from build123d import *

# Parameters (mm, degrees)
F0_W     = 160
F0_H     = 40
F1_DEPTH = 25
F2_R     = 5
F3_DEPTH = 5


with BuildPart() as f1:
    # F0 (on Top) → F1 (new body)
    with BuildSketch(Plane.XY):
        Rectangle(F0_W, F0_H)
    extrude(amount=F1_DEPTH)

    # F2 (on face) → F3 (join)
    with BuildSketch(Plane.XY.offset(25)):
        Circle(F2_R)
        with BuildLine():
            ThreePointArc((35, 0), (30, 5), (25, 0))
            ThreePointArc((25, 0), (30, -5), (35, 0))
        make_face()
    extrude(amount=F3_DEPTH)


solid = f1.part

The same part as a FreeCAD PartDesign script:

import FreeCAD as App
import Part
import Sketcher
Q = App.Units.Quantity


def add_polygon(sketch, points):
    """Adds a closed chain of lines whose ends are joined by coincident constraints."""
    first, n = sketch.GeometryCount, len(points)
    for a, b in zip(points, points[1:] + points[:1]):
        sketch.addGeometry(Part.LineSegment(App.Vector(*a, 0), App.Vector(*b, 0)), False)
    for i in range(n):
        sketch.addConstraint(Sketcher.Constraint("Coincident", first + i, 2, first + (i + 1) % n, 1))

doc = App.newDocument("Part")
params = doc.addObject("Spreadsheet::Sheet", "Params")
for row, (alias, value) in enumerate([
    ("sketch1_width", "160 mm"),
    ("sketch1_height", "40 mm"),
    ("pad1_length", "25 mm"),
    ("sketch2_diameter", "10 mm"),
    ("pad2_length", "5 mm"),
], start=1):
    params.set(f"A{row}", alias)
    params.set(f"B{row}", "=" + value)
    params.setAlias(f"B{row}", alias)

body = doc.addObject("PartDesign::Body", "Body")

# Sketch on XY plane
sketch1 = body.newObject("Sketcher::SketchObject", "Sketch")
sketch1.AttachmentSupport = (doc.getObject("XY_Plane"), [""])
sketch1.MapMode = "FlatFace"
add_polygon(sketch1, [(-80, 20), (-80, -20), (80, -20), (80, 20)])  # lines 0-3
sketch1.addConstraint([
    Sketcher.Constraint("Vertical", 0),
    Sketcher.Constraint("Horizontal", 1),
    Sketcher.Constraint("Vertical", 2),
    Sketcher.Constraint("Horizontal", 3),
    Sketcher.Constraint("Symmetric", 0, 2, 2, 2, -1, 1),
    Sketcher.Constraint("DistanceX", 1, 1, 1, 2, Q("160 mm")),
    Sketcher.Constraint("DistanceY", 0, 2, 0, 1, Q("40 mm")),
])
sketch1.setExpression("Constraints[9]", "Params.sketch1_width")
sketch1.setExpression("Constraints[10]", "Params.sketch1_height")
pad1 = body.newObject("PartDesign::Pad", "Pad")
pad1.Profile = sketch1
pad1.setExpression("Length", "Params.pad1_length")

# Sketch on XY plane
sketch2 = body.newObject("Sketcher::SketchObject", "Sketch001")
sketch2.AttachmentSupport = (doc.getObject("XY_Plane"), [""])
sketch2.MapMode = "FlatFace"
sketch2.AttachmentOffset = App.Placement(App.Vector(0, 0, 25), App.Rotation())
sketch2.addGeometry([
    Part.Circle(App.Vector(0, 0, 0), App.Vector(0, 0, 1), 5),
    Part.Circle(App.Vector(30, 0, 0), App.Vector(0, 0, 1), 5),
], False)
sketch2.addConstraint([
    Sketcher.Constraint("Coincident", 0, 3, -1, 1),
    Sketcher.Constraint("Equal", 0, 1),
    Sketcher.Constraint("PointOnObject", 1, 3, -1),
    Sketcher.Constraint("Diameter", 0, Q("10 mm")),
    Sketcher.Constraint("DistanceX", -1, 1, 1, 3, Q("30 mm")),
])
sketch2.setExpression("Constraints[3]", "Params.sketch2_diameter")
pad2 = body.newObject("PartDesign::Pad", "Pad001")
pad2.Profile = sketch2
pad2.setExpression("Length", "Params.pad2_length")

doc.recompute()
